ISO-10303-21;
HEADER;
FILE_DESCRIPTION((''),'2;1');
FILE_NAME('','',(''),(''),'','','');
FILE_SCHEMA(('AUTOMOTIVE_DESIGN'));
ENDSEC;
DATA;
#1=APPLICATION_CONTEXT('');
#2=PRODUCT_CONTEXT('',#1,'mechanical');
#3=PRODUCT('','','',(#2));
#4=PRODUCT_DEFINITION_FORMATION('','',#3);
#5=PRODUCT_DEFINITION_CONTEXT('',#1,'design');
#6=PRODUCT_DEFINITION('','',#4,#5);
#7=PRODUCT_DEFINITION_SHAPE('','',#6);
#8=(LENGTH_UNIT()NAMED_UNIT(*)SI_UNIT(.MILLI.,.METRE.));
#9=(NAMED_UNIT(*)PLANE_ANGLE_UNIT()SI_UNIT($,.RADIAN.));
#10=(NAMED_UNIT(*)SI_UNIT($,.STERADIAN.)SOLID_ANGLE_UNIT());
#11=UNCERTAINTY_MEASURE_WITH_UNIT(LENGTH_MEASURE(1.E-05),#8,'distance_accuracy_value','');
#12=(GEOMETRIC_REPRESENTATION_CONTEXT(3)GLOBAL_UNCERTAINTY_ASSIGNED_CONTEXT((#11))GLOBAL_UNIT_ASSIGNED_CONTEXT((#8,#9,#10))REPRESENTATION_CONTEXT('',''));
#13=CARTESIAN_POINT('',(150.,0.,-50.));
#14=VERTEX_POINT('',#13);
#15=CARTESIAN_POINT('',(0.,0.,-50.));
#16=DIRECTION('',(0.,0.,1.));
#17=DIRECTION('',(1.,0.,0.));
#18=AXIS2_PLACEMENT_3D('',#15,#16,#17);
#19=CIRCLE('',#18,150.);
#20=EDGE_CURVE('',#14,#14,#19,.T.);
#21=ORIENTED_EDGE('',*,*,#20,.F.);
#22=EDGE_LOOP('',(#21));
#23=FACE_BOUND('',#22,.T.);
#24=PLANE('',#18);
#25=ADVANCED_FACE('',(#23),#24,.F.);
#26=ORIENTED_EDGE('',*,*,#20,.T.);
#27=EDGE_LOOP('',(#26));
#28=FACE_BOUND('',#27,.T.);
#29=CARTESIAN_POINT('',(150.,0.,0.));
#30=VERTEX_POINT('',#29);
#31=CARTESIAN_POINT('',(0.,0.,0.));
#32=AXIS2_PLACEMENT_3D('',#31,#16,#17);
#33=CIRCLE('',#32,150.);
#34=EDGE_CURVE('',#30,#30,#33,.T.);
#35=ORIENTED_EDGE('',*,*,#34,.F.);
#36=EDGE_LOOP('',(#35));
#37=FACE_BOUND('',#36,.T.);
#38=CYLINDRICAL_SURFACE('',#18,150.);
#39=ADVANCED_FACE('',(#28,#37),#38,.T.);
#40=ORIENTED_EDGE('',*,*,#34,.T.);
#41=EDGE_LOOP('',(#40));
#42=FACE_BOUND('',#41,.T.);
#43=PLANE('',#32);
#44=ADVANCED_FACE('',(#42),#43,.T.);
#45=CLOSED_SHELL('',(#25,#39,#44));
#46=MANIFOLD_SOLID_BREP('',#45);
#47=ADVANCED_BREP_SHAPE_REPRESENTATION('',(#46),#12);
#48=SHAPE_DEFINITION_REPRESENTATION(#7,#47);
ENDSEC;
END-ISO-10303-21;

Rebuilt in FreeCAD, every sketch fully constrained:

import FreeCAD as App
import Part
import Sketcher
from FreeCAD import Vector

doc = App.newDocument("Part")
body = doc.addObject("PartDesign::Body", "Body")

sketch1 = body.newObject("Sketcher::SketchObject", "Sketch")
sketch1.AttachmentSupport = (doc.getObject("XY_Plane"), [""])
sketch1.MapMode = "FlatFace"
sketch1.addGeometry(Part.Circle(Vector(0, 0, 0), Vector(0, 0, 1), 150), False)
sketch1.addConstraint([
    Sketcher.Constraint("Coincident", 0, 3, -1, 1),
    Sketcher.Constraint("Diameter", 0, 300.0),
])
pad1 = body.newObject("PartDesign::Pad", "Pad")
pad1.Profile = sketch1
pad1.Length = 50
pad1.Reversed = True

doc.recompute()
